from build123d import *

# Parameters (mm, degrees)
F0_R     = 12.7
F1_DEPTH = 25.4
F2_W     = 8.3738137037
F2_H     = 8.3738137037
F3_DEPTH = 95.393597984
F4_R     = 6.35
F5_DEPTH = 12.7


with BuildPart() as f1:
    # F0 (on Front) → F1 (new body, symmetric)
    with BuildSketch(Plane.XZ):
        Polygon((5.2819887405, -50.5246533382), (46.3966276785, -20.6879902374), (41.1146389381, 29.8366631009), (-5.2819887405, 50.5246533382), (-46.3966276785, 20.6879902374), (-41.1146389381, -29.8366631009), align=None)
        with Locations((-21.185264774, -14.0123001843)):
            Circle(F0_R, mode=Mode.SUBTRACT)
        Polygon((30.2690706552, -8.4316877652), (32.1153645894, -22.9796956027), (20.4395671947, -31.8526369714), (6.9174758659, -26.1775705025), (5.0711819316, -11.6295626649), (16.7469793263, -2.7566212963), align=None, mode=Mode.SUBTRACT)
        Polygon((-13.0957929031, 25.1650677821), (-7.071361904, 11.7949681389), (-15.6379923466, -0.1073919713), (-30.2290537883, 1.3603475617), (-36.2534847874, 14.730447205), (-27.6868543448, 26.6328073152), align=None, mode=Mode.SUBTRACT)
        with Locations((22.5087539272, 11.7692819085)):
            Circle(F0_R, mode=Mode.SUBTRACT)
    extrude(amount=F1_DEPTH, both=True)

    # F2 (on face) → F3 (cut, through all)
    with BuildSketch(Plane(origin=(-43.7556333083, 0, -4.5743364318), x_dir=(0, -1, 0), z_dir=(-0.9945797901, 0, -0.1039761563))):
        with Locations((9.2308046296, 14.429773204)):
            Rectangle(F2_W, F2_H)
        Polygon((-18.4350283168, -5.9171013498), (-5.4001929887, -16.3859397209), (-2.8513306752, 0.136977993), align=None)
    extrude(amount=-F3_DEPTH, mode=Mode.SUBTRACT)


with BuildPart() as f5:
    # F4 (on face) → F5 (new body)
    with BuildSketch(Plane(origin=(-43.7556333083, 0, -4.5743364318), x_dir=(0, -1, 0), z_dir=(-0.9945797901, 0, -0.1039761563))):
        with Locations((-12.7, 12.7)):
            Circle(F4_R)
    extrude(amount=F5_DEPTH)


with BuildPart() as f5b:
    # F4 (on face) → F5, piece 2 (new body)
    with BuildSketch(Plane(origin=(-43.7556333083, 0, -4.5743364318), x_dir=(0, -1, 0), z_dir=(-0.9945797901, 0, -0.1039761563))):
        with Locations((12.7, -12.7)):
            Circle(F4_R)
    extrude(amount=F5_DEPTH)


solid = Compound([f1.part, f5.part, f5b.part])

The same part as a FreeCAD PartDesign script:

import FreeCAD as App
import Part
import Sketcher

V = App.Vector
Q = App.Units.Quantity

doc = App.newDocument("Part")
body = doc.addObject("PartDesign::Body", "Body")

sketch1 = doc.addObject("Sketcher::SketchObject", "Sketch")
body.addObject(sketch1)
sketch1.AttachmentSupport = (doc.XZ_Plane, [""])
sketch1.MapMode = "FlatFace"
sketch1.addGeometry(Part.LineSegment(V(5.281989, -50.524653, 0), V(46.396628, -20.68799, 0)), False)
sketch1.addGeometry(Part.LineSegment(V(46.396628, -20.68799, 0), V(41.114639, 29.836663, 0)), False)
sketch1.addGeometry(Part.LineSegment(V(41.114639, 29.836663, 0), V(-5.281989, 50.524653, 0)), False)
sketch1.addGeometry(Part.LineSegment(V(-5.281989, 50.524653, 0), V(-46.396628, 20.68799, 0)), False)
sketch1.addGeometry(Part.LineSegment(V(-46.396628, 20.68799, 0), V(-41.114639, -29.836663, 0)), False)
sketch1.addGeometry(Part.LineSegment(V(-41.114639, -29.836663, 0), V(5.281989, -50.524653, 0)), False)
sketch1.addGeometry(Part.Circle(V(-21.185265, -14.0123, 0), V(0, 0, 1), 12.7), False)
sketch1.addGeometry(Part.LineSegment(V(16.746979, -2.756621, 0), V(30.269071, -8.431688, 0)), False)
sketch1.addGeometry(Part.LineSegment(V(30.269071, -8.431688, 0), V(32.115365, -22.979696, 0)), False)
sketch1.addGeometry(Part.LineSegment(V(32.115365, -22.979696, 0), V(20.439567, -31.852637, 0)), False)
sketch1.addGeometry(Part.LineSegment(V(20.439567, -31.852637, 0), V(6.917476, -26.177571, 0)), False)
sketch1.addGeometry(Part.LineSegment(V(6.917476, -26.177571, 0), V(5.071182, -11.629563, 0)), False)
sketch1.addGeometry(Part.LineSegment(V(5.071182, -11.629563, 0), V(16.746979, -2.756621, 0)), False)
sketch1.addGeometry(Part.LineSegment(V(-27.686854, 26.632807, 0), V(-13.095793, 25.165068, 0)), False)
sketch1.addGeometry(Part.LineSegment(V(-13.095793, 25.165068, 0), V(-7.071362, 11.794968, 0)), False)
sketch1.addGeometry(Part.LineSegment(V(-7.071362, 11.794968, 0), V(-15.637992, -0.107392, 0)), False)
sketch1.addGeometry(Part.LineSegment(V(-15.637992, -0.107392, 0), V(-30.229054, 1.360348, 0)), False)
sketch1.addGeometry(Part.LineSegment(V(-30.229054, 1.360348, 0), V(-36.253485, 14.730447, 0)), False)
sketch1.addGeometry(Part.LineSegment(V(-36.253485, 14.730447, 0), V(-27.686854, 26.632807, 0)), False)
sketch1.addGeometry(Part.Circle(V(22.508754, 11.769282, 0), V(0, 0, 1), 12.7), False)
sketch1.addConstraint(Sketcher.Constraint("Coincident", 0, 2, 1, 1))
sketch1.addConstraint(Sketcher.Constraint("Coincident", 1, 2, 2, 1))
sketch1.addConstraint(Sketcher.Constraint("Coincident", 2, 2, 3, 1))
sketch1.addConstraint(Sketcher.Constraint("Coincident", 3, 2, 4, 1))
sketch1.addConstraint(Sketcher.Constraint("Coincident", 4, 2, 5, 1))
sketch1.addConstraint(Sketcher.Constraint("Coincident", 5, 2, 0, 1))
sketch1.addConstraint(Sketcher.Constraint("Coincident", 7, 2, 8, 1))
sketch1.addConstraint(Sketcher.Constraint("Coincident", 8, 2, 9, 1))
sketch1.addConstraint(Sketcher.Constraint("Coincident", 9, 2, 10, 1))
sketch1.addConstraint(Sketcher.Constraint("Coincident", 10, 2, 11, 1))
sketch1.addConstraint(Sketcher.Constraint("Coincident", 11, 2, 12, 1))
sketch1.addConstraint(Sketcher.Constraint("Coincident", 12, 2, 7, 1))
sketch1.addConstraint(Sketcher.Constraint("Coincident", 13, 2, 14, 1))
sketch1.addConstraint(Sketcher.Constraint("Coincident", 14, 2, 15, 1))
sketch1.addConstraint(Sketcher.Constraint("Coincident", 15, 2, 16, 1))
sketch1.addConstraint(Sketcher.Constraint("Coincident", 16, 2, 17, 1))
sketch1.addConstraint(Sketcher.Constraint("Coincident", 17, 2, 18, 1))
sketch1.addConstraint(Sketcher.Constraint("Coincident", 18, 2, 13, 1))
sketch1.addConstraint(Sketcher.Constraint("Diameter", 6, Q("1 in")))
sketch1.addConstraint(Sketcher.Constraint("Diameter", 19, Q("1 in")))
sketch1.addConstraint(Sketcher.Constraint("Distance", 0, Q("2 in")))
sketch1.addConstraint(Sketcher.Constraint("Distance", 1, Q("2 in")))
sketch1.addConstraint(Sketcher.Constraint("Distance", 2, Q("2 in")))
sketch1.addConstraint(Sketcher.Constraint("Distance", 3, Q("2 in")))
sketch1.addConstraint(Sketcher.Constraint("Distance", 4, Q("2 in")))
sketch1.addConstraint(Sketcher.Constraint("Distance", 5, Q("2 in")))
sketch1.addConstraint(Sketcher.Constraint("DistanceX", 14, 2, -1, 1, Q("0.2784001 in")))
sketch1.addConstraint(Sketcher.Constraint("DistanceY", 6, 3, -1, 1, 14.0123))
sketch1.addConstraint(Sketcher.Constraint("DistanceY", 14, 2, 13, 2, 13.3701))
sketch1.addConstraint(Sketcher.Constraint("DistanceX", 15, 2, 13, 2, 2.542199))
sketch1.addConstraint(Sketcher.Constraint("DistanceY", 16, 2, 17, 2, 13.3701))
sketch1.addConstraint(Sketcher.Constraint("DistanceX", 16, 2, 18, 2, 2.542199))
sketch1.addConstraint(Sketcher.Constraint("DistanceY", -1, 1, 19, 3, 11.769282))
sketch1.addConstraint(Sketcher.Constraint("DistanceY", 0, 2, -1, 1, 20.68799))
sketch1.addConstraint(Sketcher.Constraint("DistanceX", -1, 1, 1, 2, 41.114639))
sketch1.addConstraint(Sketcher.Constraint("DistanceX", 2, 2, -1, 1, 5.281989))
sketch1.addConstraint(Sketcher.Constraint("DistanceY", -1, 1, 3, 2, 20.68799))
sketch1.addConstraint(Sketcher.Constraint("DistanceX", 4, 2, -1, 1, 41.114639))
sketch1.addConstraint(Sketcher.Constraint("DistanceX", -1, 1, 5, 2, 5.281989))
sketch1.addConstraint(Sketcher.Constraint("DistanceX", -1, 1, 7, 2, 30.269071))
sketch1.addConstraint(Sketcher.Constraint("DistanceY", 10, 2, -1, 1, 26.177571))
sketch1.addConstraint(Sketcher.Constraint("DistanceX", -1, 1, 11, 2, 5.071182))
sketch1.addConstraint(Sketcher.Constraint("DistanceX", -1, 1, 12, 2, 16.746979))
sketch1.addConstraint(Sketcher.Constraint("DistanceY", 12, 2, -1, 1, 2.756621))
sketch1.addConstraint(Sketcher.Constraint("DistanceY", -1, 1, 14, 2, 11.794968))
sketch1.addConstraint(Sketcher.Constraint("DistanceY", 15, 2, -1, 1, 0.107392))
sketch1.addConstraint(Sketcher.Constraint("DistanceX", 6, 3, 19, 3, 43.694019))
sketch1.addConstraint(Sketcher.Constraint("DistanceX", 3, 2, 19, 3, 68.905382))
sketch1.addConstraint(Sketcher.Constraint("DistanceY", 7, 2, 19, 3, 20.20097))
sketch1.addConstraint(Sketcher.Constraint("DistanceX", 19, 3, 8, 2, 9.606611))
sketch1.addConstraint(Sketcher.Constraint("DistanceY", 8, 2, 1, 2, 52.816359))
sketch1.addConstraint(Sketcher.Constraint("DistanceY", 9, 2, 8, 2, 8.872941))
sketch1.addConstraint(Sketcher.Constraint("DistanceX", 5, 2, 9, 2, 15.157578))
sketch1.addConstraint(Sketcher.Constraint("DistanceX", 10, 2, 9, 2, 13.522091))
sketch1.addConstraint(Sketcher.Constraint("DistanceY", 11, 2, 12, 2, 8.872941))
sketch1.addConstraint(Sketcher.Constraint("DistanceX", 6, 3, 13, 2, 8.089472))
sketch1.addConstraint(Sketcher.Constraint("DistanceX", 16, 2, 15, 2, 14.591061))
sketch1.addConstraint(Sketcher.Constraint("DistanceY", 15, 2, 16, 2, 1.46774))
sketch1.addConstraint(Sketcher.Constraint("DistanceX", 17, 2, 16, 2, 6.024431))
sketch1.addConstraint(Sketcher.Constraint("DistanceY", 17, 2, 18, 2, 11.90236))
pad1 = doc.addObject("PartDesign::Pad", "Pad")
body.addObject(pad1)
pad1.Profile = sketch1
pad1.Length = Q("2 in")
pad1.Midplane = True

sketch2 = doc.addObject("Sketcher::SketchObject", "Sketch001")
body.addObject(sketch2)
sketch2.Placement = App.Placement(V(-43.755633, 0, -4.574336), App.Rotation(V(0, -1, 0), V(-0.103976156, 0, 0.99457979), V(-0.99457979, 0, -0.103976156), "ZXY"))
sketch2.addGeometry(Part.LineSegment(V(5, 19, 0), V(5, 10, 0)), False)
sketch2.addGeometry(Part.LineSegment(V(5, 10, 0), V(13, 10, 0)), False)
sketch2.addGeometry(Part.LineSegment(V(13, 10, 0), V(13, 19, 0)), False)
sketch2.addGeometry(Part.LineSegment(V(13, 19, 0), V(5, 19, 0)), False)
sketch2.addGeometry(Part.LineSegment(V(-18, -6, 0), V(-5, -16, 0)), False)
sketch2.addGeometry(Part.LineSegment(V(-5, -16, 0), V(-3, 0, 0)), False)
sketch2.addGeometry(Part.LineSegment(V(-3, 0, 0), V(-18, -6, 0)), False)
sketch2.addConstraint(Sketcher.Constraint("Coincident", 0, 2, 1, 1))
sketch2.addConstraint(Sketcher.Constraint("Coincident", 1, 2, 2, 1))
sketch2.addConstraint(Sketcher.Constraint("Coincident", 2, 2, 3, 1))
sketch2.addConstraint(Sketcher.Constraint("Coincident", 3, 2, 0, 1))
sketch2.addConstraint(Sketcher.Constraint("Coincident", 4, 2, 5, 1))
sketch2.addConstraint(Sketcher.Constraint("Coincident", 5, 2, 6, 1))
sketch2.addConstraint(Sketcher.Constraint("Coincident", 6, 2, 4, 1))
sketch2.addConstraint(Sketcher.Constraint("Vertical", 0))
sketch2.addConstraint(Sketcher.Constraint("Horizontal", 1))
sketch2.addConstraint(Sketcher.Constraint("Vertical", 2))
sketch2.addConstraint(Sketcher.Constraint("Horizontal", 3))
sketch2.addConstraint(Sketcher.Constraint("Equal", 3, 0))
sketch2.addConstraint(Sketcher.Constraint("Equal", 4, 5))
sketch2.addConstraint(Sketcher.Constraint("Equal", 5, 6))
sketch2.addConstraint(Sketcher.Constraint("DistanceY", 6, 2, -1, 1, 5.917101))
sketch2.addConstraint(Sketcher.Constraint("Distance", 4, 16.718358))
sketch2.addConstraint(Sketcher.Constraint("DistanceX", 1, 1, 1, 2, 8.373814))
sketch2.addConstraint(Sketcher.Constraint("DistanceX", -1, 1, 1, 2, 13.417711))
sketch2.addConstraint(Sketcher.Constraint("DistanceY", -1, 1, 2, 2, 18.61668))
sketch2.addConstraint(Sketcher.Constraint("DistanceY", 4, 2, -1, 1, 16.38594))
sketch2.addConstraint(Sketcher.Constraint("DistanceX", 5, 2, -1, 1, 2.851331))
pocket1 = doc.addObject("PartDesign::Pocket", "Pocket")
body.addObject(pocket1)
pocket1.Profile = sketch2
pocket1.Type = "ThroughAll"
body2 = doc.addObject("PartDesign::Body", "Body001")

sketch3 = doc.addObject("Sketcher::SketchObject", "Sketch002")
body2.addObject(sketch3)
sketch3.Placement = App.Placement(V(-43.755633, 0, -4.574336), App.Rotation(V(0, -1, 0), V(-0.103976156, 0, 0.99457979), V(-0.99457979, 0, -0.103976156), "ZXY"))
sketch3.addGeometry(Part.Circle(V(-13, 13, 0), V(0, 0, 1), 6), False)
sketch3.addConstraint(Sketcher.Constraint("Diameter", 0, Q("0.5 in")))
sketch3.addConstraint(Sketcher.Constraint("DistanceX", 0, 3, -1, 1, Q("0.5 in")))
sketch3.addConstraint(Sketcher.Constraint("DistanceY", -1, 1, 0, 3, Q("0.5 in")))
pad2 = doc.addObject("PartDesign::Pad", "Pad001")
body2.addObject(pad2)
pad2.Profile = sketch3
pad2.Length = Q("0.5 in")
body3 = doc.addObject("PartDesign::Body", "Body002")

sketch4 = doc.addObject("Sketcher::SketchObject", "Sketch003")
body3.addObject(sketch4)
sketch4.Placement = App.Placement(V(-43.755633, 0, -4.574336), App.Rotation(V(0, -1, 0), V(-0.103976156, 0, 0.99457979), V(-0.99457979, 0, -0.103976156), "ZXY"))
sketch4.addGeometry(Part.Circle(V(13, -13, 0), V(0, 0, 1), 6), False)
sketch4.addConstraint(Sketcher.Constraint("Diameter", 0, Q("0.5 in")))
sketch4.addConstraint(Sketcher.Constraint("DistanceX", -1, 1, 0, 3, Q("0.5 in")))
sketch4.addConstraint(Sketcher.Constraint("DistanceY", 0, 3, -1, 1, Q("0.5 in")))
pad3 = doc.addObject("PartDesign::Pad", "Pad002")
body3.addObject(pad3)
pad3.Profile = sketch4
pad3.Length = Q("0.5 in")

doc.recompute()
